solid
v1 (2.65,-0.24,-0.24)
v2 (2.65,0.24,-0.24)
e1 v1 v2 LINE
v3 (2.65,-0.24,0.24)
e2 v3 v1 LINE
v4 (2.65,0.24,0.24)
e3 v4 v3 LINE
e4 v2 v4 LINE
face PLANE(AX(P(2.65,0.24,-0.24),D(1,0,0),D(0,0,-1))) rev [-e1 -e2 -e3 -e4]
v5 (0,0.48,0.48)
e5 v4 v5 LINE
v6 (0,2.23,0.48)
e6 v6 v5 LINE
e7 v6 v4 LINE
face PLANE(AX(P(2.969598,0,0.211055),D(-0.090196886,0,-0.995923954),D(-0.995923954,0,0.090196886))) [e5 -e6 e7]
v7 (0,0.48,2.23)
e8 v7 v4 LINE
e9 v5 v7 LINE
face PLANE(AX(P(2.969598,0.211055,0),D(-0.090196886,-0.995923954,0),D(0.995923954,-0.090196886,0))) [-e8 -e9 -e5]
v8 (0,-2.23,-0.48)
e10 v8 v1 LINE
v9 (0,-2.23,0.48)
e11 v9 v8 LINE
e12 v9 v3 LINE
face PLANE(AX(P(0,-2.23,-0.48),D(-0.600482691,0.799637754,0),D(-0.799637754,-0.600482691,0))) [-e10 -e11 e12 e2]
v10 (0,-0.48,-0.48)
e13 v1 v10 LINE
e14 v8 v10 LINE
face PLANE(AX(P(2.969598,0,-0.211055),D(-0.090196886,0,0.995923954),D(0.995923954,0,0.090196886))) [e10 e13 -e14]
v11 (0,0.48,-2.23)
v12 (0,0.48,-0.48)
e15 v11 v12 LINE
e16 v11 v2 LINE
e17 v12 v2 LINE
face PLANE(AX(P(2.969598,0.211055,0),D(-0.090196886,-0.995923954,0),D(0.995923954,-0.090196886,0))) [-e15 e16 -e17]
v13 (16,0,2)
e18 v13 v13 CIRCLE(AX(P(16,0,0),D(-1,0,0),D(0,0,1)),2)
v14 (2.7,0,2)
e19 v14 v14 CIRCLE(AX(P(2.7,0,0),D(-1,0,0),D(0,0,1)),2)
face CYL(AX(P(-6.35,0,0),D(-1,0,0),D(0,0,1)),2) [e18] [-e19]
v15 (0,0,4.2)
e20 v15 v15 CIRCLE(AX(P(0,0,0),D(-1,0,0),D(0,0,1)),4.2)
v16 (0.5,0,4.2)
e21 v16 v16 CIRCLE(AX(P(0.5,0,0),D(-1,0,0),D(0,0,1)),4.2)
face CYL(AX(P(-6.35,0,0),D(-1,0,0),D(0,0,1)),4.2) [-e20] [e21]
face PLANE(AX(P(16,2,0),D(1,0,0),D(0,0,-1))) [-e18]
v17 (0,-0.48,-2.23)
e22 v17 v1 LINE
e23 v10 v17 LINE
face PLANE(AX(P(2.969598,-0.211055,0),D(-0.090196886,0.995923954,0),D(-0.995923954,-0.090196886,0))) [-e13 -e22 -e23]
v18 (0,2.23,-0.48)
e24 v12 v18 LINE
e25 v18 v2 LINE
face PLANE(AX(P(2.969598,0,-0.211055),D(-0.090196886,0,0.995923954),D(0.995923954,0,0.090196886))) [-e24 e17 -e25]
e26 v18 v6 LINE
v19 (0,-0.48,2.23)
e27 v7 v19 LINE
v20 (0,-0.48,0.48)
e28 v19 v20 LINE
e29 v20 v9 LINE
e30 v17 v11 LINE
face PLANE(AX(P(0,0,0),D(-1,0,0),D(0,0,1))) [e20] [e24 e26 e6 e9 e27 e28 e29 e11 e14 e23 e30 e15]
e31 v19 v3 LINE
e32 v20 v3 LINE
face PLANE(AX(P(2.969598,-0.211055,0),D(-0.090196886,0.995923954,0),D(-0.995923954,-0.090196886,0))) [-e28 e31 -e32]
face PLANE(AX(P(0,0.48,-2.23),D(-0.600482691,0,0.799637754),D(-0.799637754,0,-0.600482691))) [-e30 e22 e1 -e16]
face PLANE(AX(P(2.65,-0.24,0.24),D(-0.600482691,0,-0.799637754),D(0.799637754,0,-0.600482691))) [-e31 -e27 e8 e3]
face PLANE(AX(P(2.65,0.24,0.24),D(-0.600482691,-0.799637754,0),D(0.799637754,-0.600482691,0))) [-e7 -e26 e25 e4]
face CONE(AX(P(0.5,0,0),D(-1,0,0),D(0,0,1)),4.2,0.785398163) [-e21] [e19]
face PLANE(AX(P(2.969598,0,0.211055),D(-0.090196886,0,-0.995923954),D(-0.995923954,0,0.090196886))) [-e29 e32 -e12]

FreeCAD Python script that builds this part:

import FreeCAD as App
import Part
import Sketcher

V = App.Vector
Q = App.Units.Quantity

doc = App.newDocument("Part")
body = doc.addObject("PartDesign::Body", "Body")

# Sketch on XY plane
sketch1 = body.newObject("Sketcher::SketchObject", "Sketch")
sketch1.AttachmentSupport = (doc.getObject("XY_Plane"), [""])
sketch1.MapMode = "FlatFace"
sketch1.addGeometry(Part.LineSegment(V(0, 4.2, 0), V(0, 0, 0)), False)
sketch1.addGeometry(Part.LineSegment(V(0, 0, 0), V(16, 0, 0)), False)
sketch1.addGeometry(Part.LineSegment(V(16, 0, 0), V(16, 2, 0)), False)
sketch1.addGeometry(Part.LineSegment(V(16, 2, 0), V(2.7, 2, 0)), False)
sketch1.addGeometry(Part.LineSegment(V(2.7, 2, 0), V(0.5, 4.2, 0)), False)
sketch1.addGeometry(Part.LineSegment(V(0.5, 4.2, 0), V(0, 4.2, 0)), False)
sketch1.addConstraint(Sketcher.Constraint("Coincident", 0, 2, 1, 1))
sketch1.addConstraint(Sketcher.Constraint("Coincident", 1, 2, 2, 1))
sketch1.addConstraint(Sketcher.Constraint("Coincident", 2, 2, 3, 1))
sketch1.addConstraint(Sketcher.Constraint("Coincident", 3, 2, 4, 1))
sketch1.addConstraint(Sketcher.Constraint("Coincident", 4, 2, 5, 1))
sketch1.addConstraint(Sketcher.Constraint("Coincident", 5, 2, 0, 1))
sketch1.addConstraint(Sketcher.Constraint("Vertical", 0))
sketch1.addConstraint(Sketcher.Constraint("Horizontal", 1))
sketch1.addConstraint(Sketcher.Constraint("Vertical", 2))
sketch1.addConstraint(Sketcher.Constraint("Horizontal", 3))
sketch1.addConstraint(Sketcher.Constraint("Horizontal", 5))
sketch1.addConstraint(Sketcher.Constraint("Coincident", 0, 2, -1, 1))
sketch1.addConstraint(Sketcher.Constraint("DistanceX", 1, 1, 1, 2, 16.0))
sketch1.addConstraint(Sketcher.Constraint("DistanceY", 2, 1, 2, 2, 2.0))
sketch1.addConstraint(Sketcher.Constraint("Angle", 4, Q("135 deg")))
sketch1.addConstraint(Sketcher.Constraint("DistanceX", 3, 2, 3, 1, 13.3))
sketch1.addConstraint(Sketcher.Constraint("DistanceX", 5, 2, 5, 1, 0.5))
revolution = body.newObject("PartDesign::Revolution", "Revolution")
revolution.Profile = sketch1
revolution.ReferenceAxis = (sketch1, ["H_Axis"])
revolution.Angle = 360

# Sketch on YZ plane
sketch2 = body.newObject("Sketcher::SketchObject", "Sketch001")
sketch2.AttachmentSupport = (doc.getObject("YZ_Plane"), [""])
sketch2.MapMode = "FlatFace"
sketch2.addGeometry(Part.LineSegment(V(2.2, -0.5, 0), V(-2.2, -0.5, 0)), False)
sketch2.addGeometry(Part.LineSegment(V(-2.2, -0.5, 0), V(-2.2, 0.5, 0)), False)
sketch2.addGeometry(Part.LineSegment(V(-2.2, 0.5, 0), V(2.2, 0.5, 0)), False)
sketch2.addGeometry(Part.LineSegment(V(2.2, 0.5, 0), V(2.2, -0.5, 0)), False)
sketch2.addConstraint(Sketcher.Constraint("Coincident", 0, 2, 1, 1))
sketch2.addConstraint(Sketcher.Constraint("Coincident", 1, 2, 2, 1))
sketch2.addConstraint(Sketcher.Constraint("Coincident", 2, 2, 3, 1))
sketch2.addConstraint(Sketcher.Constraint("Coincident", 3, 2, 0, 1))
sketch2.addConstraint(Sketcher.Constraint("Horizontal", 0))
sketch2.addConstraint(Sketcher.Constraint("Vertical", 1))
sketch2.addConstraint(Sketcher.Constraint("Horizontal", 2))
sketch2.addConstraint(Sketcher.Constraint("Vertical", 3))
sketch2.addConstraint(Sketcher.Constraint("Symmetric", 0, 2, 2, 2, -1, 1))
sketch2.addConstraint(Sketcher.Constraint("DistanceX", 0, 2, 0, 1, 4.46))
sketch2.addConstraint(Sketcher.Constraint("DistanceY", 1, 1, 1, 2, 0.96))

# Sketch on YZ plane
sketch3 = body.newObject("Sketcher::SketchObject", "Sketch002")
sketch3.AttachmentSupport = (doc.getObject("YZ_Plane"), [""])
sketch3.MapMode = "FlatFace"
sketch3.AttachmentOffset = App.Placement(V(0, 0, 2.65), App.Rotation())
sketch3.addGeometry(Part.LineSegment(V(0.24, -0.24, 0), V(-0.24, -0.24, 0)), False)
sketch3.addGeometry(Part.LineSegment(V(-0.24, -0.24, 0), V(-0.24, 0.24, 0)), False)
sketch3.addGeometry(Part.LineSegment(V(-0.24, 0.24, 0), V(0.24, 0.24, 0)), False)
sketch3.addGeometry(Part.LineSegment(V(0.24, 0.24, 0), V(0.24, -0.24, 0)), False)
sketch3.addConstraint(Sketcher.Constraint("Coincident", 0, 2, 1, 1))
sketch3.addConstraint(Sketcher.Constraint("Coincident", 1, 2, 2, 1))
sketch3.addConstraint(Sketcher.Constraint("Coincident", 2, 2, 3, 1))
sketch3.addConstraint(Sketcher.Constraint("Coincident", 3, 2, 0, 1))
sketch3.addConstraint(Sketcher.Constraint("Horizontal", 0))
sketch3.addConstraint(Sketcher.Constraint("Vertical", 1))
sketch3.addConstraint(Sketcher.Constraint("Horizontal", 2))
sketch3.addConstraint(Sketcher.Constraint("Vertical", 3))
sketch3.addConstraint(Sketcher.Constraint("Symmetric", 0, 2, 2, 2, -1, 1))
sketch3.addConstraint(Sketcher.Constraint("Equal", 2, 1))
sketch3.addConstraint(Sketcher.Constraint("DistanceX", 0, 2, 0, 1, 0.48))

subtractiveloft = body.newObject("PartDesign::SubtractiveLoft", "SubtractiveLoft")
subtractiveloft.Profile = sketch2
subtractiveloft.Sections = [sketch3]
doc.recompute()

polarpattern = body.newObject("PartDesign::PolarPattern", "PolarPattern")
polarpattern.Originals = [subtractiveloft]
polarpattern.Axis = (doc.getObject("X_Axis"), [""])
polarpattern.Angle = 90
polarpattern.Occurrences = 2
body.Tip = polarpattern

doc.recompute()
